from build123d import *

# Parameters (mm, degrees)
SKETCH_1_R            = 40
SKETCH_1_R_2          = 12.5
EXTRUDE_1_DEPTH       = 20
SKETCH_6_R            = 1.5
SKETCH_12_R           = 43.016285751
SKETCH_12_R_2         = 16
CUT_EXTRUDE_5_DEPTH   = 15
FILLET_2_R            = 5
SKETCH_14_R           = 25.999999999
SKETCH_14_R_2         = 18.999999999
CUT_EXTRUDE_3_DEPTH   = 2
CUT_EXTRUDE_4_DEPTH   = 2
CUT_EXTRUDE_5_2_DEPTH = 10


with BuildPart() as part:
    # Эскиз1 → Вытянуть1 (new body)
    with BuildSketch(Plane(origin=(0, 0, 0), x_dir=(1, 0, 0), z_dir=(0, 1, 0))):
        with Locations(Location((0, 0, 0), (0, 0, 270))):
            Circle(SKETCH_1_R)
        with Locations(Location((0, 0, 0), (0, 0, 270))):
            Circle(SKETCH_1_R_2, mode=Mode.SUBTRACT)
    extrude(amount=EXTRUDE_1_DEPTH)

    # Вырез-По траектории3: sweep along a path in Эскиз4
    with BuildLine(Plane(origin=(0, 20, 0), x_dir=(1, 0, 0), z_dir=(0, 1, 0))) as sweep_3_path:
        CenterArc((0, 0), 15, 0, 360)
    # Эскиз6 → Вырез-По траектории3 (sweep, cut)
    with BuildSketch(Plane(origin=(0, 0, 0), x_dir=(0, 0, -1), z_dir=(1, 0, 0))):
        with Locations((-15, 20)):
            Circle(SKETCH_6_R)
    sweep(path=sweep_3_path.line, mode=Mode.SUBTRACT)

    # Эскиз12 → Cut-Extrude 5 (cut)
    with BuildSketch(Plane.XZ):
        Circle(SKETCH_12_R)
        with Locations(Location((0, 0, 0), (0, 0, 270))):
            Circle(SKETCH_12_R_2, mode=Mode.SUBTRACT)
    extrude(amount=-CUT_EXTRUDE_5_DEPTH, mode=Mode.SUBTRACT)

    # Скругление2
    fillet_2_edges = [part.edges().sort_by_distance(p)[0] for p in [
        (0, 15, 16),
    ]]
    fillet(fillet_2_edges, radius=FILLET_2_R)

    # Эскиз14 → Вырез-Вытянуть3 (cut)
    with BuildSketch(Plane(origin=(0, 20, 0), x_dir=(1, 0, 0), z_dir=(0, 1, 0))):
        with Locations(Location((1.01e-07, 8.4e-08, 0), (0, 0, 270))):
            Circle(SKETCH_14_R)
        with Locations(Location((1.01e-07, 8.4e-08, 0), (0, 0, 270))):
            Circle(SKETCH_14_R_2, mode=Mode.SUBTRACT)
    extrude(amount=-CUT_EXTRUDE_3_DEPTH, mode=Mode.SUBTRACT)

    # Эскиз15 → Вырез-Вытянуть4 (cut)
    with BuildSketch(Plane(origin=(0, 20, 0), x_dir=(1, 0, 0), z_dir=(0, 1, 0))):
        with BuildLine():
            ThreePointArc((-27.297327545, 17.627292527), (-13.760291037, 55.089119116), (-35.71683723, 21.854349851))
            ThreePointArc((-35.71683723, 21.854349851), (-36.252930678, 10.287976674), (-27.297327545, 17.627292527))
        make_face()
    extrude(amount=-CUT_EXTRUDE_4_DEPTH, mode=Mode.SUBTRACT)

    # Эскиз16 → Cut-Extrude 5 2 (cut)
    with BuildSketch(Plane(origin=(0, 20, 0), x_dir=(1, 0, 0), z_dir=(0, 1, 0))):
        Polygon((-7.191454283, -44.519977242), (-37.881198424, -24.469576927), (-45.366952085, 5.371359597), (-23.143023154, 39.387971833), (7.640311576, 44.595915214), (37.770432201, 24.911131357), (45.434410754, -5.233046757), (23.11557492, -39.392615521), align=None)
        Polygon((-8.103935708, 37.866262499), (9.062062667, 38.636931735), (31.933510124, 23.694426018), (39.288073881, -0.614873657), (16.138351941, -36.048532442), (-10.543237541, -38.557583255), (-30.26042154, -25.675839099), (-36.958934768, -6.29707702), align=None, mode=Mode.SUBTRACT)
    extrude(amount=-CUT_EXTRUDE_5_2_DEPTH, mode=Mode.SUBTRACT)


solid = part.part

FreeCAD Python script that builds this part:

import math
import FreeCAD as App
import Part
import Sketcher


def edges_at(feature, points):
    """Names of the edges that pass closest to the given points."""
    edges = feature.Shape.Edges
    near = lambda p: min(range(len(edges)), key=lambda i: edges[i].distToShape(Part.Vertex(*p))[0])
    return sorted({f"Edge{near(p) + 1}" for p in points})

doc = App.newDocument("Part")
params = doc.addObject("Spreadsheet::Sheet", "Params")
for row, (alias, value) in enumerate([
    ("sketch1_diameter", "80 mm"),
    ("sketch1_diameter2", "25 mm"),
    ("pad1_length", "20 mm"),
    ("sketch2_diameter", "3 mm"),
    ("sketch3_diameter", "30 mm"),
    ("sketch4_diameter", "32 mm"),
    ("pocket1_length", "15 mm"),
    ("fillet_radius", "5 mm"),
    ("sketch5_diameter", "52 mm"),
    ("sketch5_diameter2", "38 mm"),
    ("pocket2_length", "2 mm"),
    ("pocket3_length", "2 mm"),
    ("pocket4_length", "10 mm"),
], start=1):
    params.set(f"A{row}", alias)
    params.set(f"B{row}", "=" + value)
    params.setAlias(f"B{row}", alias)

body = doc.addObject("PartDesign::Body", "Body")

# Sketch on XZ plane
sketch1 = body.newObject("Sketcher::SketchObject", "Sketch")
sketch1.AttachmentSupport = (doc.getObject("XZ_Plane"), [""])
sketch1.MapMode = "FlatFace"
sketch1.addGeometry(Part.Circle(App.Vector(0, 0, 0), App.Vector(0, 0, 1), 40), False)
sketch1.addGeometry(Part.Circle(App.Vector(0, 0, 0), App.Vector(0, 0, 1), 12.5), False)
sketch1.addConstraint(Sketcher.Constraint("Coincident", 0, 3, -1, 1))
sketch1.addConstraint(Sketcher.Constraint("Coincident", 1, 3, -1, 1))
sketch1.addConstraint(Sketcher.Constraint("Diameter", 0, 80.0))
sketch1.addConstraint(Sketcher.Constraint("Diameter", 1, 25.0))
sketch1.setExpression("Constraints[2]", "Params.sketch1_diameter")
sketch1.setExpression("Constraints[3]", "Params.sketch1_diameter2")
pad1 = body.newObject("PartDesign::Pad", "Pad")
pad1.Profile = sketch1
pad1.setExpression("Length", "Params.pad1_length")
pad1.Reversed = True

# Sketch on YZ plane
sketch2 = body.newObject("Sketcher::SketchObject", "Sketch001")
sketch2.AttachmentSupport = (doc.getObject("YZ_Plane"), [""])
sketch2.MapMode = "FlatFace"
sketch2.addGeometry(Part.Circle(App.Vector(20, 15, 0), App.Vector(0, 0, 1), 1.5), False)
sketch2.addConstraint(Sketcher.Constraint("Diameter", 0, 3.0))
sketch2.addConstraint(Sketcher.Constraint("DistanceX", -1, 1, 0, 3, 20.0))
sketch2.addConstraint(Sketcher.Constraint("DistanceY", -1, 1, 0, 3, 15.0))
sketch2.setExpression("Constraints[0]", "Params.sketch2_diameter")

# Sketch on XZ plane
sketch3 = body.newObject("Sketcher::SketchObject", "Sketch002")
sketch3.AttachmentSupport = (doc.getObject("XZ_Plane"), [""])
sketch3.MapMode = "FlatFace"
sketch3.AttachmentOffset = App.Placement(App.Vector(0, 0, -20), App.Rotation())
sketch3.addGeometry(Part.Circle(App.Vector(0, 0, 0), App.Vector(0, 0, 1), 15), False)
sketch3.addConstraint(Sketcher.Constraint("Coincident", 0, 3, -1, 1))
sketch3.addConstraint(Sketcher.Constraint("Diameter", 0, 30.0))
sketch3.setExpression("Constraints[1]", "Params.sketch3_diameter")
doc.recompute()

subtractivepipe = body.newObject("PartDesign::SubtractivePipe", "SubtractivePipe")
subtractivepipe.Profile = sketch2
subtractivepipe.Spine = (sketch3, ["Edge1"])

# Sketch on XZ plane
sketch4 = body.newObject("Sketcher::SketchObject", "Sketch003")
sketch4.AttachmentSupport = (doc.getObject("XZ_Plane"), [""])
sketch4.MapMode = "FlatFace"
sketch4.addGeometry(Part.Circle(App.Vector(0, 0, 0), App.Vector(0, 0, 1), 43.016286), False)
sketch4.addGeometry(Part.Circle(App.Vector(0, 0, 0), App.Vector(0, 0, 1), 16), False)
sketch4.addConstraint(Sketcher.Constraint("Coincident", 0, 3, -1, 1))
sketch4.addConstraint(Sketcher.Constraint("Coincident", 1, 3, -1, 1))
sketch4.addConstraint(Sketcher.Constraint("Diameter", 1, 32.0))
sketch4.addConstraint(Sketcher.Constraint("Diameter", 0, 86.032572))
sketch4.setExpression("Constraints[2]", "Params.sketch4_diameter")
pocket1 = body.newObject("PartDesign::Pocket", "Pocket")
pocket1.Profile = sketch4
pocket1.setExpression("Length", "Params.pocket1_length")
doc.recompute()

fillet = body.newObject("PartDesign::Fillet", "Fillet")
fillet.Base = (pocket1, edges_at(pocket1, [(0, 15, 16)]))
fillet.setExpression("Radius", "Params.fillet_radius")

# Sketch on XZ plane
sketch5 = body.newObject("Sketcher::SketchObject", "Sketch004")
sketch5.AttachmentSupport = (doc.getObject("XZ_Plane"), [""])
sketch5.MapMode = "FlatFace"
sketch5.AttachmentOffset = App.Placement(App.Vector(0, 0, -20), App.Rotation())
sketch5.addGeometry(Part.Circle(App.Vector(0, 0, 0), App.Vector(0, 0, 1), 26), False)
sketch5.addGeometry(Part.Circle(App.Vector(0, 0, 0), App.Vector(0, 0, 1), 19), False)
sketch5.addConstraint(Sketcher.Constraint("Coincident", 0, 3, -1, 1))
sketch5.addConstraint(Sketcher.Constraint("Coincident", 1, 3, -1, 1))
sketch5.addConstraint(Sketcher.Constraint("Diameter", 0, 52.0))
sketch5.addConstraint(Sketcher.Constraint("Diameter", 1, 38.0))
sketch5.setExpression("Constraints[2]", "Params.sketch5_diameter")
sketch5.setExpression("Constraints[3]", "Params.sketch5_diameter2")
pocket2 = body.newObject("PartDesign::Pocket", "Pocket001")
pocket2.Profile = sketch5
pocket2.setExpression("Length", "Params.pocket2_length")
pocket2.Reversed = True

# Sketch on XZ plane
sketch6 = body.newObject("Sketcher::SketchObject", "Sketch005")
sketch6.AttachmentSupport = (doc.getObject("XZ_Plane"), [""])
sketch6.MapMode = "FlatFace"
sketch6.AttachmentOffset = App.Placement(App.Vector(0, 0, -20), App.Rotation())
sketch6.addGeometry(Part.ArcOfCircle(Part.Circle(App.Vector(-22.759541, -37.164293, 0), App.Vector(0, 0, 1), 20.057066), math.radians(130.242311), math.radians(463.076029)), False)
sketch6.addGeometry(Part.ArcOfCircle(Part.Circle(App.Vector(-33.409384, -15.951791, 0), App.Vector(0, 0, 1), 6.33755), math.radians(-15.329931), math.radians(248.648271)), False)
sketch6.addConstraint(Sketcher.Constraint("Coincident", 0, 1, 1, 2))
sketch6.addConstraint(Sketcher.Constraint("Coincident", 1, 1, 0, 2))
sketch6.addConstraint(Sketcher.Constraint("Radius", 1, 6.33755))
sketch6.addConstraint(Sketcher.Constraint("Radius", 0, 20.057066))
sketch6.addConstraint(Sketcher.Constraint("DistanceY", 0, 3, 1, 1, 19.537))
sketch6.addConstraint(Sketcher.Constraint("DistanceY", 1, 1, 1, 3, 1.675502))
sketch6.addConstraint(Sketcher.Constraint("DistanceX", 0, 3, -1, 1, 22.759541))
sketch6.addConstraint(Sketcher.Constraint("DistanceY", 1, 3, -1, 1, 15.951791))
pocket3 = body.newObject("PartDesign::Pocket", "Pocket002")
pocket3.Profile = sketch6
pocket3.setExpression("Length", "Params.pocket3_length")
pocket3.Reversed = True

# Sketch on XZ plane
sketch7 = body.newObject("Sketcher::SketchObject", "Sketch006")
sketch7.AttachmentSupport = (doc.getObject("XZ_Plane"), [""])
sketch7.MapMode = "FlatFace"
sketch7.AttachmentOffset = App.Placement(App.Vector(0, 0, -20), App.Rotation())
sketch7.addGeometry(Part.LineSegment(App.Vector(-37.881198, 24.469577, 0), App.Vector(-7.191454, 44.519977, 0)), False)
sketch7.addGeometry(Part.LineSegment(App.Vector(-7.191454, 44.519977, 0), App.Vector(23.115575, 39.392616, 0)), False)
sketch7.addGeometry(Part.LineSegment(App.Vector(23.115575, 39.392616, 0), App.Vector(45.434411, 5.233047, 0)), False)
sketch7.addGeometry(Part.LineSegment(App.Vector(45.434411, 5.233047, 0), App.Vector(37.770432, -24.911131, 0)), False)
sketch7.addGeometry(Part.LineSegment(App.Vector(37.770432, -24.911131, 0), App.Vector(7.640312, -44.595915, 0)), False)
sketch7.addGeometry(Part.LineSegment(App.Vector(7.640312, -44.595915, 0), App.Vector(-23.143023, -39.387972, 0)), False)
sketch7.addGeometry(Part.LineSegment(App.Vector(-23.143023, -39.387972, 0), App.Vector(-45.366952, -5.37136, 0)), False)
sketch7.addGeometry(Part.LineSegment(App.Vector(-45.366952, -5.37136, 0), App.Vector(-37.881198, 24.469577, 0)), False)
sketch7.addGeometry(Part.LineSegment(App.Vector(-8.103936, -37.866262, 0), App.Vector(9.062063, -38.636932, 0)), False)
sketch7.addGeometry(Part.LineSegment(App.Vector(9.062063, -38.636932, 0), App.Vector(31.93351, -23.694426, 0)), False)
sketch7.addGeometry(Part.LineSegment(App.Vector(31.93351, -23.694426, 0), App.Vector(39.288074, 0.614874, 0)), False)
sketch7.addGeometry(Part.LineSegment(App.Vector(39.288074, 0.614874, 0), App.Vector(16.138352, 36.048532, 0)), False)
sketch7.addGeometry(Part.LineSegment(App.Vector(16.138352, 36.048532, 0), App.Vector(-10.543238, 38.557583, 0)), False)
sketch7.addGeometry(Part.LineSegment(App.Vector(-10.543238, 38.557583, 0), App.Vector(-30.260422, 25.675839, 0)), False)
sketch7.addGeometry(Part.LineSegment(App.Vector(-30.260422, 25.675839, 0), App.Vector(-36.958935, 6.297077, 0)), False)
sketch7.addGeometry(Part.LineSegment(App.Vector(-36.958935, 6.297077, 0), App.Vector(-8.103936, -37.866262, 0)), False)
sketch7.addConstraint(Sketcher.Constraint("Coincident", 0, 2, 1, 1))
sketch7.addConstraint(Sketcher.Constraint("Coincident", 1, 2, 2, 1))
sketch7.addConstraint(Sketcher.Constraint("Coincident", 2, 2, 3, 1))
sketch7.addConstraint(Sketcher.Constraint("Coincident", 3, 2, 4, 1))
sketch7.addConstraint(Sketcher.Constraint("Coincident", 4, 2, 5, 1))
sketch7.addConstraint(Sketcher.Constraint("Coincident", 5, 2, 6, 1))
sketch7.addConstraint(Sketcher.Constraint("Coincident", 6, 2, 7, 1))
sketch7.addConstraint(Sketcher.Constraint("Coincident", 7, 2, 0, 1))
sketch7.addConstraint(Sketcher.Constraint("Coincident", 8, 2, 9, 1))
sketch7.addConstraint(Sketcher.Constraint("Coincident", 9, 2, 10, 1))
sketch7.addConstraint(Sketcher.Constraint("Coincident", 10, 2, 11, 1))
sketch7.addConstraint(Sketcher.Constraint("Coincident", 11, 2, 12, 1))
sketch7.addConstraint(Sketcher.Constraint("Coincident", 12, 2, 13, 1))
sketch7.addConstraint(Sketcher.Constraint("Coincident", 13, 2, 14, 1))
sketch7.addConstraint(Sketcher.Constraint("Coincident", 14, 2, 15, 1))
sketch7.addConstraint(Sketcher.Constraint("Coincident", 15, 2, 8, 1))
sketch7.addConstraint(Sketcher.Constraint("Parallel", 0, 4))
sketch7.addConstraint(Sketcher.Constraint("Parallel", 1, 5))
sketch7.addConstraint(Sketcher.Constraint("Perpendicular", 4, 6))
sketch7.addConstraint(Sketcher.Constraint("Perpendicular", 6, 9))
sketch7.addConstraint(Sketcher.Constraint("Perpendicular", 9, 11))
sketch7.addConstraint(Sketcher.Constraint("Perpendicular", 11, 13))
sketch7.addConstraint(Sketcher.Constraint("Parallel", 2, 15))
sketch7.addConstraint(Sketcher.Constraint("DistanceX", 15, 2, 8, 2, 17.165998))
sketch7.addConstraint(Sketcher.Constraint("Distance", 12, 26.799301))
sketch7.addConstraint(Sketcher.Constraint("DistanceX", 7, 2, -1, 1, 37.881198))
sketch7.addConstraint(Sketcher.Constraint("DistanceX", 4, 2, 2, 2, 37.794099))
sketch7.addConstraint(Sketcher.Constraint("DistanceX", 5, 2, 1, 2, 46.258598))
sketch7.addConstraint(Sketcher.Constraint("DistanceY", 7, 2, 0, 2, 20.0504))
sketch7.addConstraint(Sketcher.Constraint("DistanceY", 8, 2, 3, 2, 13.7258))
sketch7.addConstraint(Sketcher.Constraint("DistanceX", 9, 2, 2, 2, 13.500901))
sketch7.addConstraint(Sketcher.Constraint("DistanceY", 9, 2, 10, 2, 24.3093))
sketch7.addConstraint(Sketcher.Constraint("DistanceX", 1, 2, 10, 2, 16.172499))
sketch7.addConstraint(Sketcher.Constraint("DistanceY", 6, 2, 13, 2, 31.047199))
sketch7.addConstraint(Sketcher.Constraint("DistanceY", 14, 2, 7, 2, 18.1725))
sketch7.addConstraint(Sketcher.Constraint("Distance", 5, 31.220768))
sketch7.addConstraint(Sketcher.Constraint("Distance", 8, 17.183289))
sketch7.addConstraint(Sketcher.Constraint("Distance", 11, 42.325569))
sketch7.addConstraint(Sketcher.Constraint("Distance", 13, 23.552212))
sketch7.addConstraint(Sketcher.Constraint("DistanceX", -1, 1, 2, 2, 45.434411))
sketch7.addConstraint(Sketcher.Constraint("DistanceY", 3, 2, -1, 1, 24.911131))
sketch7.addConstraint(Sketcher.Constraint("DistanceY", 5, 2, -1, 1, 39.387972))
sketch7.addConstraint(Sketcher.Constraint("DistanceY", 6, 2, -1, 1, 5.37136))
sketch7.addConstraint(Sketcher.Constraint("DistanceX", -1, 1, 11, 2, 16.138352))
sketch7.addConstraint(Sketcher.Constraint("DistanceX", 13, 2, -1, 1, 30.260422))
sketch7.addConstraint(Sketcher.Constraint("DistanceX", 0, 2, 1, 2, 30.307029))
sketch7.addConstraint(Sketcher.Constraint("DistanceY", 2, 2, 1, 2, 34.159569))
sketch7.addConstraint(Sketcher.Constraint("DistanceY", 3, 2, 2, 2, 30.144178))
pocket4 = body.newObject("PartDesign::Pocket", "Pocket003")
pocket4.Profile = sketch7
pocket4.setExpression("Length", "Params.pocket4_length")
pocket4.Reversed = True

doc.recompute()
